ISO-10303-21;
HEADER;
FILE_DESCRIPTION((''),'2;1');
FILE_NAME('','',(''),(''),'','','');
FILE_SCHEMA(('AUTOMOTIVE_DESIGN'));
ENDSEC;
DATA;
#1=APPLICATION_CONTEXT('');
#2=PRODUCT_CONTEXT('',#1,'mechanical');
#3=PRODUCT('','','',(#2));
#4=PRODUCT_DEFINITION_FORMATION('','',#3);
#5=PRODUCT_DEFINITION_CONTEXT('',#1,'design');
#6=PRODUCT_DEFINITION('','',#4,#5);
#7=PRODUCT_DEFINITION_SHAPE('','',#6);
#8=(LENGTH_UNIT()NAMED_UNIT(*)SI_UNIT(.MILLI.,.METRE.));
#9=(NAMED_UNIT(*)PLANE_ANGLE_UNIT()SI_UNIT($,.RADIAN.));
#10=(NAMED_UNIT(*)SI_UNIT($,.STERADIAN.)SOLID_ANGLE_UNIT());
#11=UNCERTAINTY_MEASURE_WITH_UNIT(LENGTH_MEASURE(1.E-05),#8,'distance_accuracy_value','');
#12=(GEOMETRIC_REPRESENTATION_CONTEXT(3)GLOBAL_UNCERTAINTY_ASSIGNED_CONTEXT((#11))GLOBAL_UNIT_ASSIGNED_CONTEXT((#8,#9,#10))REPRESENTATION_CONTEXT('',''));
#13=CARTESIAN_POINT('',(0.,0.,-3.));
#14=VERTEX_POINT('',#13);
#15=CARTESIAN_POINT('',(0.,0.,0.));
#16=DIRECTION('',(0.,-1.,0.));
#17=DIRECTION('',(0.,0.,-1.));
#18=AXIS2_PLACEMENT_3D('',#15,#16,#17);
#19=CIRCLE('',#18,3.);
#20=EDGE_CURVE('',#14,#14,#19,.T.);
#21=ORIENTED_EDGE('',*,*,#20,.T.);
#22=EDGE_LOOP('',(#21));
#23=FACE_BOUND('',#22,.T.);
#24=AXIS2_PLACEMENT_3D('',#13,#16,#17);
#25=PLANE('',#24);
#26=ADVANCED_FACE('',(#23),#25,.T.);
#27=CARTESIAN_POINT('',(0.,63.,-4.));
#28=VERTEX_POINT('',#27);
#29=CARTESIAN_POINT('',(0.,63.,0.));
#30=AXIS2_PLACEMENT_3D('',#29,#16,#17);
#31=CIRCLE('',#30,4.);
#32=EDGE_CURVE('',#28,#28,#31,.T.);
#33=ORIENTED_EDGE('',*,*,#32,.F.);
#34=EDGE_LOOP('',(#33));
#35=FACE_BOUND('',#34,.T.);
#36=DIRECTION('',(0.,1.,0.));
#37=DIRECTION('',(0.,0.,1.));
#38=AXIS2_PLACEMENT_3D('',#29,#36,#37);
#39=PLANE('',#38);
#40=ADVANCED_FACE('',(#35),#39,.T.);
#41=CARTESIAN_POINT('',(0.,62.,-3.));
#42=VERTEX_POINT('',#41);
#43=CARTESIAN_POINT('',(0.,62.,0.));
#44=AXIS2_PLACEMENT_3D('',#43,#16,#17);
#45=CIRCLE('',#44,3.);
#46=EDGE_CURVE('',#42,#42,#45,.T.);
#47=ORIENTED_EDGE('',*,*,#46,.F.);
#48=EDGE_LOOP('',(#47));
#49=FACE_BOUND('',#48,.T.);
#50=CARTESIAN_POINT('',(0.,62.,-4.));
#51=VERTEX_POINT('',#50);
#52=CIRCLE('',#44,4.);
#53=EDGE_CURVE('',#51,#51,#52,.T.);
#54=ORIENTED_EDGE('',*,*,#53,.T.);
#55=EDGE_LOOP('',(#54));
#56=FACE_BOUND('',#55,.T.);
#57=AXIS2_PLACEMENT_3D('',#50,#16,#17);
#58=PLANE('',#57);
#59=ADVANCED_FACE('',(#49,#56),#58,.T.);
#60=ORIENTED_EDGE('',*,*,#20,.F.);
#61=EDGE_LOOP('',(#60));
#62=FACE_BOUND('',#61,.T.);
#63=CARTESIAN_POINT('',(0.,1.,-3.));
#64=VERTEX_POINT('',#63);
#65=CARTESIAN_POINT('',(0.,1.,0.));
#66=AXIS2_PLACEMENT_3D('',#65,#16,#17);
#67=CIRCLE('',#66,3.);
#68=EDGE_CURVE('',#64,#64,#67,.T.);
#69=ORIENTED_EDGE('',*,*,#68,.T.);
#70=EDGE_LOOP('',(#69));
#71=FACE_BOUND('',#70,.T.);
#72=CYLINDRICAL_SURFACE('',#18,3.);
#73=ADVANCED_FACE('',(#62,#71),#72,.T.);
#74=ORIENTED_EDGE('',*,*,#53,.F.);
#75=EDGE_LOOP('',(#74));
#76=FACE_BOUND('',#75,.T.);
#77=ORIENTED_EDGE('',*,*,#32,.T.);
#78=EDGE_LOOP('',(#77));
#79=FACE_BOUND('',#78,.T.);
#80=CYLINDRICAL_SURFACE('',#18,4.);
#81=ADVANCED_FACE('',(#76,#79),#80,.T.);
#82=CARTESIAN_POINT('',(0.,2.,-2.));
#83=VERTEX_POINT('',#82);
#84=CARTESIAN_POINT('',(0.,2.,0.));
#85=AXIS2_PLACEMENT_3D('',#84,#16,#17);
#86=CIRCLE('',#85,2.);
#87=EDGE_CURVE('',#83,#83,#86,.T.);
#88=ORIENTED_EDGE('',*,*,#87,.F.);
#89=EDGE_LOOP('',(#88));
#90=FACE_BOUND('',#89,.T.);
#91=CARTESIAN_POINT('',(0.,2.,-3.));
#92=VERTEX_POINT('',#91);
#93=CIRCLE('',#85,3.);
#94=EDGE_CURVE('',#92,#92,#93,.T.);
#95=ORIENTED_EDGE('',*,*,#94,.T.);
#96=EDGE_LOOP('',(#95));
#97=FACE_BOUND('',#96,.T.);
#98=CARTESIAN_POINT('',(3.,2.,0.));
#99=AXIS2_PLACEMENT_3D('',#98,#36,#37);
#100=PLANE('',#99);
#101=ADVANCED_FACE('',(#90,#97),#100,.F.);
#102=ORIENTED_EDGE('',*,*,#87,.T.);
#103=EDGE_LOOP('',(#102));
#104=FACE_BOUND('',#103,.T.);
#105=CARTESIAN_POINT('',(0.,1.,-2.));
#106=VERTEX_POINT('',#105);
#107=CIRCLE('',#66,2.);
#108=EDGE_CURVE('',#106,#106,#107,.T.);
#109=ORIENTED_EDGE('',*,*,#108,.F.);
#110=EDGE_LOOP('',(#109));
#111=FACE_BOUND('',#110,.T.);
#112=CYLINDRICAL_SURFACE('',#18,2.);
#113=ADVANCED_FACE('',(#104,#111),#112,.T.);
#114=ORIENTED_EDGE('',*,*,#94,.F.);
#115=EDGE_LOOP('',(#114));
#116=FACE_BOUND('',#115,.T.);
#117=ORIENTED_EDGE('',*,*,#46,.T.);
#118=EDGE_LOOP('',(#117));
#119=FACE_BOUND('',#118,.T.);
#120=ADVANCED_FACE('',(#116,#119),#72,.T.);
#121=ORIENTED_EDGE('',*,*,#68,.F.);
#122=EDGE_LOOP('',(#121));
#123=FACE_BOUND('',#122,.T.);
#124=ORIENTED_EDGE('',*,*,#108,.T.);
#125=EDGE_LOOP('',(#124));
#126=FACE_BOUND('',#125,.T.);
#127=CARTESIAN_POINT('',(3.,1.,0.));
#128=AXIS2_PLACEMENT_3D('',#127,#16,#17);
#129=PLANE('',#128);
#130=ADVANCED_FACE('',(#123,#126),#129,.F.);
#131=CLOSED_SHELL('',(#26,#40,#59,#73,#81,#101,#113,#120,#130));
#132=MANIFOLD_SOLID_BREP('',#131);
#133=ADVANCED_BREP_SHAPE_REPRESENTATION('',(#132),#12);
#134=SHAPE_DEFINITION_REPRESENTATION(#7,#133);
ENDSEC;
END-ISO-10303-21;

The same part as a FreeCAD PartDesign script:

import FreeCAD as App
import Part
import Sketcher

doc = App.newDocument("Part")
body = doc.addObject("PartDesign::Body", "Body")

# Sketch on YZ plane
sketch1 = body.newObject("Sketcher::SketchObject", "Sketch")
sketch1.AttachmentSupport = (doc.getObject("YZ_Plane"), [""])
sketch1.MapMode = "FlatFace"
sketch1.addGeometry(Part.LineSegment(App.Vector(63, -4, 0), App.Vector(63, 0, 0)), False)
sketch1.addGeometry(Part.LineSegment(App.Vector(63, 0, 0), App.Vector(0, 0, 0)), False)
sketch1.addGeometry(Part.LineSegment(App.Vector(0, 0, 0), App.Vector(0, -3, 0)), False)
sketch1.addGeometry(Part.LineSegment(App.Vector(0, -3, 0), App.Vector(62, -3, 0)), False)
sketch1.addGeometry(Part.LineSegment(App.Vector(62, -3, 0), App.Vector(62, -4, 0)), False)
sketch1.addGeometry(Part.LineSegment(App.Vector(62, -4, 0), App.Vector(63, -4, 0)), False)
sketch1.addConstraint(Sketcher.Constraint("Coincident", 0, 2, 1, 1))
sketch1.addConstraint(Sketcher.Constraint("Coincident", 1, 2, 2, 1))
sketch1.addConstraint(Sketcher.Constraint("Coincident", 2, 2, 3, 1))
sketch1.addConstraint(Sketcher.Constraint("Coincident", 3, 2, 4, 1))
sketch1.addConstraint(Sketcher.Constraint("Coincident", 4, 2, 5, 1))
sketch1.addConstraint(Sketcher.Constraint("Coincident", 5, 2, 0, 1))
sketch1.addConstraint(Sketcher.Constraint("Vertical", 0))
sketch1.addConstraint(Sketcher.Constraint("Horizontal", 1))
sketch1.addConstraint(Sketcher.Constraint("Vertical", 2))
sketch1.addConstraint(Sketcher.Constraint("Horizontal", 3))
sketch1.addConstraint(Sketcher.Constraint("Vertical", 4))
sketch1.addConstraint(Sketcher.Constraint("Horizontal", 5))
sketch1.addConstraint(Sketcher.Constraint("Coincident", 1, 2, -1, 1))
sketch1.addConstraint(Sketcher.Constraint("Equal", 5, 4))
sketch1.addConstraint(Sketcher.Constraint("DistanceX", 1, 2, 1, 1, 63.0))
sketch1.addConstraint(Sketcher.Constraint("DistanceX", 3, 1, 3, 2, 62.0))
sketch1.addConstraint(Sketcher.Constraint("DistanceY", 0, 1, 0, 2, 4.0))
revolution = body.newObject("PartDesign::Revolution", "Revolution")
revolution.Profile = sketch1
revolution.ReferenceAxis = (sketch1, ["H_Axis"])
revolution.Angle = 360

# Sketch on XY plane
sketch2 = body.newObject("Sketcher::SketchObject", "Sketch001")
sketch2.AttachmentSupport = (doc.getObject("XY_Plane"), [""])
sketch2.MapMode = "FlatFace"
sketch2.addGeometry(Part.LineSegment(App.Vector(2, 2, 0), App.Vector(2, 1, 0)), False)
sketch2.addGeometry(Part.LineSegment(App.Vector(2, 1, 0), App.Vector(3, 1, 0)), False)
sketch2.addGeometry(Part.LineSegment(App.Vector(3, 1, 0), App.Vector(3, 2, 0)), False)
sketch2.addGeometry(Part.LineSegment(App.Vector(3, 2, 0), App.Vector(2, 2, 0)), False)
sketch2.addConstraint(Sketcher.Constraint("Coincident", 0, 2, 1, 1))
sketch2.addConstraint(Sketcher.Constraint("Coincident", 1, 2, 2, 1))
sketch2.addConstraint(Sketcher.Constraint("Coincident", 2, 2, 3, 1))
sketch2.addConstraint(Sketcher.Constraint("Coincident", 3, 2, 0, 1))
sketch2.addConstraint(Sketcher.Constraint("Vertical", 0))
sketch2.addConstraint(Sketcher.Constraint("Horizontal", 1))
sketch2.addConstraint(Sketcher.Constraint("Vertical", 2))
sketch2.addConstraint(Sketcher.Constraint("Horizontal", 3))
sketch2.addConstraint(Sketcher.Constraint("Equal", 3, 0))
sketch2.addConstraint(Sketcher.Constraint("DistanceX", 1, 1, 1, 2, 1.0))
sketch2.addConstraint(Sketcher.Constraint("DistanceX", -1, 1, 0, 2, 2.0))
sketch2.addConstraint(Sketcher.Constraint("DistanceY", -1, 1, 0, 2, 1.0))
groove = body.newObject("PartDesign::Groove", "Groove")
groove.Profile = sketch2
groove.ReferenceAxis = (sketch2, ["V_Axis"])
groove.Angle = 360

doc.recompute()
